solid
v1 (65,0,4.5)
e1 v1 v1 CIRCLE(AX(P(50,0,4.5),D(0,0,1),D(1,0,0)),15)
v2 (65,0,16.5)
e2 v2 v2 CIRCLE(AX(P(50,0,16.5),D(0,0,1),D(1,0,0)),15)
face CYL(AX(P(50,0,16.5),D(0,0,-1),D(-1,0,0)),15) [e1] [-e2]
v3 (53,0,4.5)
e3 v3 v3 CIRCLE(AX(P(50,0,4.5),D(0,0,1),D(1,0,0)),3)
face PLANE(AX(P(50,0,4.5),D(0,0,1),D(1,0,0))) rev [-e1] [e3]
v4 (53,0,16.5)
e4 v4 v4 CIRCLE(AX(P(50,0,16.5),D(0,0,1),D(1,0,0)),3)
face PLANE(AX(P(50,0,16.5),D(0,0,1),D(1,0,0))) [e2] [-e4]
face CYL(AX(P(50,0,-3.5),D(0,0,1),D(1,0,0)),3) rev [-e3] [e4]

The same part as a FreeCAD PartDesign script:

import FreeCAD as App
import Part
import Sketcher
Q = App.Units.Quantity

doc = App.newDocument("Part")
body = doc.addObject("PartDesign::Body", "Body")

# Sketch on XY plane
sketch1 = doc.addObject("Sketcher::SketchObject", "Sketch")
body.addObject(sketch1)
sketch1.AttachmentSupport = (doc.XY_Plane, [""])
sketch1.MapMode = "FlatFace"
sketch1.AttachmentOffset = App.Placement(App.Vector(0, 0, 4.5), App.Rotation())
sketch1.addGeometry(Part.Circle(App.Vector(50, 0, 0), App.Vector(0, 0, 1), 15), False)
sketch1.addConstraint([
    Sketcher.Constraint("PointOnObject", 0, 3, -1),
    Sketcher.Constraint("Diameter", 0, Q("30 mm")),
    Sketcher.Constraint("DistanceX", -1, 1, 0, 3, Q("50 mm")),
])
pad1 = doc.addObject("PartDesign::Pad", "Pad")
body.addObject(pad1)
pad1.Profile = sketch1
pad1.Length = 12

# Sketch on XY plane
sketch2 = doc.addObject("Sketcher::SketchObject", "Sketch001")
body.addObject(sketch2)
sketch2.AttachmentSupport = (doc.XY_Plane, [""])
sketch2.MapMode = "FlatFace"
sketch2.AttachmentOffset = App.Placement(App.Vector(0, 0, 16.5), App.Rotation())
sketch2.addGeometry(Part.Circle(App.Vector(50, 0, 0), App.Vector(0, 0, 1), 3), False)
sketch2.addConstraint([
    Sketcher.Constraint("PointOnObject", 0, 3, -1),
    Sketcher.Constraint("Diameter", 0, Q("6 mm")),
    Sketcher.Constraint("DistanceX", -1, 1, 0, 3, Q("50 mm")),
])
pocket1 = doc.addObject("PartDesign::Pocket", "Pocket")
body.addObject(pocket1)
pocket1.Profile = sketch2
pocket1.Length = 20

doc.recompute()
